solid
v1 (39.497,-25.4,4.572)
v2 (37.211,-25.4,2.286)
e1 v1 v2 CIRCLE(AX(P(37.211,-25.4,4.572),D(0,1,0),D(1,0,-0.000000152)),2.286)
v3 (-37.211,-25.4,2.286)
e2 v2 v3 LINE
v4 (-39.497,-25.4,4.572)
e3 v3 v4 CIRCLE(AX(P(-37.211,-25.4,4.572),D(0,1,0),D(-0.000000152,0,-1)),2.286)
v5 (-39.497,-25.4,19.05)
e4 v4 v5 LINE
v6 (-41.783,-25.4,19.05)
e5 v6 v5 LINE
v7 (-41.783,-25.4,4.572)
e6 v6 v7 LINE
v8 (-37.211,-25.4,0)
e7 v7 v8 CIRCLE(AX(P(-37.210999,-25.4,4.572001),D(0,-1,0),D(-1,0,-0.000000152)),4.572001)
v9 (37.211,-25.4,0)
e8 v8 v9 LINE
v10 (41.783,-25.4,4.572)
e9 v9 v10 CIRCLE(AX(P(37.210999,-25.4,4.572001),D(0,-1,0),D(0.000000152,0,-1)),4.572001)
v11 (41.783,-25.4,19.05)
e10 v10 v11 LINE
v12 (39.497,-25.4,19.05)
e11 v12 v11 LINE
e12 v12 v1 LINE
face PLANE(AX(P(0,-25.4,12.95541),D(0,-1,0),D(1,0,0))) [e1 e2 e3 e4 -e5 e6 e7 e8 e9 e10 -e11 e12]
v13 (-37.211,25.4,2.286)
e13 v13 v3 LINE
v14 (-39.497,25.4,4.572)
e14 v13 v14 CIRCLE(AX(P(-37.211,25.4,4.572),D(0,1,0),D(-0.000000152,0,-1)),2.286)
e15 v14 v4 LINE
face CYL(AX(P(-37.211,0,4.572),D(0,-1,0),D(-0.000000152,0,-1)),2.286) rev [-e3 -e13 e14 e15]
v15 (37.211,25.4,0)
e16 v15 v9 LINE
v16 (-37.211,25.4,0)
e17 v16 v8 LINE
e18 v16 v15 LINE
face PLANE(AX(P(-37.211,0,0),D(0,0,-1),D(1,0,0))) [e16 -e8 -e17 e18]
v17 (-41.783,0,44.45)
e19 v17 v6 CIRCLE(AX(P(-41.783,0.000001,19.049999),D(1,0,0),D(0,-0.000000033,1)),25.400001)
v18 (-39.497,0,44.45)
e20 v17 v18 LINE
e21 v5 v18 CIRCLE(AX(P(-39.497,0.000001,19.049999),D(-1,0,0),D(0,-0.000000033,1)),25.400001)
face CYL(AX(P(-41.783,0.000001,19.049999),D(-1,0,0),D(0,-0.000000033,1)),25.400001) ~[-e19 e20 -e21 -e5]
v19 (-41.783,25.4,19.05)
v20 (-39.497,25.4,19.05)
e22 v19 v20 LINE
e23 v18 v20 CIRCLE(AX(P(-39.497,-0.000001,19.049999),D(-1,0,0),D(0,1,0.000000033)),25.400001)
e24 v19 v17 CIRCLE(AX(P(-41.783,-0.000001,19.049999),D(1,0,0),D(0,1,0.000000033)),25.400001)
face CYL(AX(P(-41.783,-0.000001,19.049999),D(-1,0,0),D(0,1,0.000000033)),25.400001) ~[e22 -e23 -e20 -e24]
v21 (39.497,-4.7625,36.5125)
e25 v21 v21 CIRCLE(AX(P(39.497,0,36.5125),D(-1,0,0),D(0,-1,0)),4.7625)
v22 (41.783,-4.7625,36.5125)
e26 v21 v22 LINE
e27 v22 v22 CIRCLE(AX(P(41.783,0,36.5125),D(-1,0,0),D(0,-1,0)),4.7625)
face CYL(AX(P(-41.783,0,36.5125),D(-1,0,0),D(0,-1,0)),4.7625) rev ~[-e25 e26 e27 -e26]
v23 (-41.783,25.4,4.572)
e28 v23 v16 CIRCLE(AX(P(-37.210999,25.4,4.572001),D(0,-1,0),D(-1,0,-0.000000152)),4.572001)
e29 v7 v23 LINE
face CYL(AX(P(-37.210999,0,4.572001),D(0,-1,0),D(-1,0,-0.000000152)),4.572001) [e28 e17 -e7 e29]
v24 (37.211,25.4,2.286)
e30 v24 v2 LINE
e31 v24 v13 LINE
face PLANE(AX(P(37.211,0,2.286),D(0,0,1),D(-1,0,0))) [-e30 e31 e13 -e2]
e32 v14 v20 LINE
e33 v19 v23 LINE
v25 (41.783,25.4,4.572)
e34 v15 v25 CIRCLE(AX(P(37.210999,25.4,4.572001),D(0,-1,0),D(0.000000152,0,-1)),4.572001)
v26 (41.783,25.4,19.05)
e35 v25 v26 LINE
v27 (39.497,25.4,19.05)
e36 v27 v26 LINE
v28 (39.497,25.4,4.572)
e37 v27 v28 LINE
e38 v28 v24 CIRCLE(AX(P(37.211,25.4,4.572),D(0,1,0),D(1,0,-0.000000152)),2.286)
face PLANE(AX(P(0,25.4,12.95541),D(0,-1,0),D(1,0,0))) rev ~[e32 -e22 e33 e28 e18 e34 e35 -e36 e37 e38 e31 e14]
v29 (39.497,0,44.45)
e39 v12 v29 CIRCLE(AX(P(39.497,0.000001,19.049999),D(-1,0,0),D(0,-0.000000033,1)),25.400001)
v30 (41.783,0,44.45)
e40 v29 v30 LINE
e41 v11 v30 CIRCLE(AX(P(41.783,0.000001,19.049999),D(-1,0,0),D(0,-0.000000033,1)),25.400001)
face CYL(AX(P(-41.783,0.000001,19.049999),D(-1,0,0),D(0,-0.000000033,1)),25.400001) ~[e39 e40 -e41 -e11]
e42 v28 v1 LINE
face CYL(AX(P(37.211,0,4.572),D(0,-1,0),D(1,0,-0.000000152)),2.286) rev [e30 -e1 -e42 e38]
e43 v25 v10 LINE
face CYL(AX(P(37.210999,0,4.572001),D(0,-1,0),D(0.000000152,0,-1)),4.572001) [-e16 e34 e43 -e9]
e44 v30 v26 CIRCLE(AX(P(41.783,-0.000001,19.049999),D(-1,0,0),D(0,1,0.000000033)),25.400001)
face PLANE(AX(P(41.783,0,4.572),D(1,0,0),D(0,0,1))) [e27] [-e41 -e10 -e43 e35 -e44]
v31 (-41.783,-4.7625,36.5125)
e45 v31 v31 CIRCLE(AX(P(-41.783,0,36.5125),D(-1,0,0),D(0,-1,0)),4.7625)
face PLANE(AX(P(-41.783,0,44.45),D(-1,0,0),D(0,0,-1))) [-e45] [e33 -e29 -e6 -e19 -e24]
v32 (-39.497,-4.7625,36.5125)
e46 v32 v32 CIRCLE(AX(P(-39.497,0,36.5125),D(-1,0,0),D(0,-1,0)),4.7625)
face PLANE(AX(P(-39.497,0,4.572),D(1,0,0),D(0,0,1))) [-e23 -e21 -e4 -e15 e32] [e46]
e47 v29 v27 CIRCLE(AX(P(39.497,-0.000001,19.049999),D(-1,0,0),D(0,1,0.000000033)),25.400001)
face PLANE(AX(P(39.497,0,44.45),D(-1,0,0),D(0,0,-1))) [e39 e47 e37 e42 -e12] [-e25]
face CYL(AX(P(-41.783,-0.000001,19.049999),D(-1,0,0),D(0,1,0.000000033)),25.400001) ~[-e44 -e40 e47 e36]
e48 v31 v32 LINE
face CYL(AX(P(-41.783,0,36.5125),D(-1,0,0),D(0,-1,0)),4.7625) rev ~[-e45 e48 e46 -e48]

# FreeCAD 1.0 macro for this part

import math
import FreeCAD as App
import Part
import Sketcher
from FreeCAD import Vector
Q = App.Units.Quantity

doc = App.newDocument("Part")
body = doc.addObject("PartDesign::Body", "Body")

# Sketch on XZ plane
sketch1 = doc.addObject("Sketcher::SketchObject", "Sketch")
body.addObject(sketch1)
sketch1.AttachmentSupport = (doc.XZ_Plane, [""])
sketch1.MapMode = "FlatFace"
sketch1.addGeometry([
    Part.ArcOfCircle(Part.Circle(Vector(-37.2, 4.6, 0), Vector(0, 0, 1), 4.6), math.radians(-180), math.radians(-90)),  # 0
    Part.LineSegment(Vector(-37.2, 0, 0), Vector(37.2, 0, 0)),  # 1
    Part.ArcOfCircle(Part.Circle(Vector(37.2, 4.6, 0), Vector(0, 0, 1), 4.6), math.radians(-90), math.radians(0)),  # 2
    Part.LineSegment(Vector(41.8, 4.6, 0), Vector(41.8, 44.5, 0)),  # 3
    Part.LineSegment(Vector(41.8, 44.5, 0), Vector(39.5, 44.5, 0)),  # 4
    Part.LineSegment(Vector(39.5, 44.5, 0), Vector(39.5, 4.6, 0)),  # 5
    Part.ArcOfCircle(Part.Circle(Vector(37.2, 4.6, 0), Vector(0, 0, 1), 2.3), math.radians(-90), math.radians(0)),  # 6
    Part.LineSegment(Vector(37.2, 2.3, 0), Vector(-37.2, 2.3, 0)),  # 7
    Part.ArcOfCircle(Part.Circle(Vector(-37.2, 4.6, 0), Vector(0, 0, 1), 2.3), math.radians(-180), math.radians(-90)),  # 8
    Part.LineSegment(Vector(-39.5, 4.6, 0), Vector(-39.5, 44.5, 0)),  # 9
    Part.LineSegment(Vector(-39.5, 44.5, 0), Vector(-41.8, 44.5, 0)),  # 10
    Part.LineSegment(Vector(-41.8, 44.5, 0), Vector(-41.8, 4.6, 0)),  # 11
], False)
sketch1.addConstraint([
    Sketcher.Constraint("Tangent", 0, 2, 1, 1),
    Sketcher.Constraint("Tangent", 1, 2, 2, 1),
    Sketcher.Constraint("Tangent", 2, 2, 3, 1),
    Sketcher.Constraint("Coincident", 3, 2, 4, 1),
    Sketcher.Constraint("Coincident", 4, 2, 5, 1),
    Sketcher.Constraint("Tangent", 5, 2, 6, 2),
    Sketcher.Constraint("Tangent", 6, 1, 7, 1),
    Sketcher.Constraint("Tangent", 7, 2, 8, 2),
    Sketcher.Constraint("Tangent", 8, 1, 9, 1),
    Sketcher.Constraint("Coincident", 9, 2, 10, 1),
    Sketcher.Constraint("Coincident", 10, 2, 11, 1),
    Sketcher.Constraint("Tangent", 11, 2, 0, 1),
    Sketcher.Constraint("Horizontal", 1),
    Sketcher.Constraint("Vertical", 3),
    Sketcher.Constraint("Horizontal", 4),
    Sketcher.Constraint("Vertical", 5),
    Sketcher.Constraint("Horizontal", 7),
    Sketcher.Constraint("Vertical", 9),
    Sketcher.Constraint("Horizontal", 10),
    Sketcher.Constraint("Vertical", 11),
    Sketcher.Constraint("Coincident", 6, 3, 2, 3),
    Sketcher.Constraint("Coincident", 8, 3, 0, 3),
    Sketcher.Constraint("Equal", 0, 2),
    Sketcher.Constraint("Symmetric", 0, 2, 1, 2, -1, 1),
    Sketcher.Constraint("Horizontal", 4, 2, 9, 2),
    Sketcher.Constraint("Radius", 0, Q("0.18 in")),
    Sketcher.Constraint("Radius", 6, Q("0.09 in")),
    Sketcher.Constraint("DistanceX", 1, 1, 1, 2, Q("2.93 in")),
    Sketcher.Constraint("DistanceY", 3, 1, 3, 2, Q("1.57 in")),
])
pad1 = doc.addObject("PartDesign::Pad", "Pad")
body.addObject(pad1)
pad1.Profile = sketch1
pad1.Length = Q("2 in")
pad1.Midplane = True

# Sketch on YZ plane
sketch2 = doc.addObject("Sketcher::SketchObject", "Sketch001")
body.addObject(sketch2)
sketch2.AttachmentSupport = (doc.YZ_Plane, [""])
sketch2.MapMode = "FlatFace"
sketch2.AttachmentOffset = App.Placement(Vector(0, 0, -1.645 * 25.4), App.Rotation())
sketch2.addGeometry([
    Part.ArcOfCircle(Part.Circle(Vector(0, 19, 0), Vector(0, 0, 1), 25.4), math.radians(0), math.radians(90)),  # 0
    Part.LineSegment(Vector(0, 44.5, 0), Vector(25.4, 44.5, 0)),  # 1
    Part.LineSegment(Vector(25.4, 44.5, 0), Vector(25.4, 19.1, 0)),  # 2
    Part.Circle(Vector(0, 36.5, 0), Vector(0, 0, 1), 4.8),  # 3
    Part.ArcOfCircle(Part.Circle(Vector(0, 19, 0), Vector(0, 0, 1), 25.4), math.radians(90), math.radians(180)),  # 4
    Part.LineSegment(Vector(-25.4, 19.1, 0), Vector(-25.4, 44.5, 0)),  # 5
    Part.LineSegment(Vector(-25.4, 44.5, 0), Vector(0, 44.5, 0)),  # 6
], False)
sketch2.addConstraint([
    Sketcher.Constraint("Tangent", 0, 2, 1, 1),
    Sketcher.Constraint("Coincident", 1, 2, 2, 1),
    Sketcher.Constraint("Tangent", 2, 2, 0, 1),
    Sketcher.Constraint("Tangent", 4, 2, 5, 1),
    Sketcher.Constraint("Coincident", 5, 2, 6, 1),
    Sketcher.Constraint("Tangent", 6, 2, 4, 1),
    Sketcher.Constraint("Horizontal", 1),
    Sketcher.Constraint("Vertical", 2),
    Sketcher.Constraint("Vertical", 5),
    Sketcher.Constraint("Horizontal", 6),
    Sketcher.Constraint("Coincident", 4, 3, 0, 3),
    Sketcher.Constraint("Equal", 0, 4),
    Sketcher.Constraint("PointOnObject", 0, 3, -2),
    Sketcher.Constraint("PointOnObject", 3, 3, -2),
    Sketcher.Constraint("Radius", 0, Q("1 in")),
    Sketcher.Constraint("Diameter", 3, Q("0.375 in")),
    Sketcher.Constraint("DistanceY", -1, 1, 0, 3, Q("0.75 in")),
    Sketcher.Constraint("DistanceY", -1, 1, 3, 3, Q("1.4375 in")),
])
pocket1 = doc.addObject("PartDesign::Pocket", "Pocket")
body.addObject(pocket1)
pocket1.Profile = sketch2
pocket1.Type = "ThroughAll"
pocket1.Reversed = True

doc.recompute()
